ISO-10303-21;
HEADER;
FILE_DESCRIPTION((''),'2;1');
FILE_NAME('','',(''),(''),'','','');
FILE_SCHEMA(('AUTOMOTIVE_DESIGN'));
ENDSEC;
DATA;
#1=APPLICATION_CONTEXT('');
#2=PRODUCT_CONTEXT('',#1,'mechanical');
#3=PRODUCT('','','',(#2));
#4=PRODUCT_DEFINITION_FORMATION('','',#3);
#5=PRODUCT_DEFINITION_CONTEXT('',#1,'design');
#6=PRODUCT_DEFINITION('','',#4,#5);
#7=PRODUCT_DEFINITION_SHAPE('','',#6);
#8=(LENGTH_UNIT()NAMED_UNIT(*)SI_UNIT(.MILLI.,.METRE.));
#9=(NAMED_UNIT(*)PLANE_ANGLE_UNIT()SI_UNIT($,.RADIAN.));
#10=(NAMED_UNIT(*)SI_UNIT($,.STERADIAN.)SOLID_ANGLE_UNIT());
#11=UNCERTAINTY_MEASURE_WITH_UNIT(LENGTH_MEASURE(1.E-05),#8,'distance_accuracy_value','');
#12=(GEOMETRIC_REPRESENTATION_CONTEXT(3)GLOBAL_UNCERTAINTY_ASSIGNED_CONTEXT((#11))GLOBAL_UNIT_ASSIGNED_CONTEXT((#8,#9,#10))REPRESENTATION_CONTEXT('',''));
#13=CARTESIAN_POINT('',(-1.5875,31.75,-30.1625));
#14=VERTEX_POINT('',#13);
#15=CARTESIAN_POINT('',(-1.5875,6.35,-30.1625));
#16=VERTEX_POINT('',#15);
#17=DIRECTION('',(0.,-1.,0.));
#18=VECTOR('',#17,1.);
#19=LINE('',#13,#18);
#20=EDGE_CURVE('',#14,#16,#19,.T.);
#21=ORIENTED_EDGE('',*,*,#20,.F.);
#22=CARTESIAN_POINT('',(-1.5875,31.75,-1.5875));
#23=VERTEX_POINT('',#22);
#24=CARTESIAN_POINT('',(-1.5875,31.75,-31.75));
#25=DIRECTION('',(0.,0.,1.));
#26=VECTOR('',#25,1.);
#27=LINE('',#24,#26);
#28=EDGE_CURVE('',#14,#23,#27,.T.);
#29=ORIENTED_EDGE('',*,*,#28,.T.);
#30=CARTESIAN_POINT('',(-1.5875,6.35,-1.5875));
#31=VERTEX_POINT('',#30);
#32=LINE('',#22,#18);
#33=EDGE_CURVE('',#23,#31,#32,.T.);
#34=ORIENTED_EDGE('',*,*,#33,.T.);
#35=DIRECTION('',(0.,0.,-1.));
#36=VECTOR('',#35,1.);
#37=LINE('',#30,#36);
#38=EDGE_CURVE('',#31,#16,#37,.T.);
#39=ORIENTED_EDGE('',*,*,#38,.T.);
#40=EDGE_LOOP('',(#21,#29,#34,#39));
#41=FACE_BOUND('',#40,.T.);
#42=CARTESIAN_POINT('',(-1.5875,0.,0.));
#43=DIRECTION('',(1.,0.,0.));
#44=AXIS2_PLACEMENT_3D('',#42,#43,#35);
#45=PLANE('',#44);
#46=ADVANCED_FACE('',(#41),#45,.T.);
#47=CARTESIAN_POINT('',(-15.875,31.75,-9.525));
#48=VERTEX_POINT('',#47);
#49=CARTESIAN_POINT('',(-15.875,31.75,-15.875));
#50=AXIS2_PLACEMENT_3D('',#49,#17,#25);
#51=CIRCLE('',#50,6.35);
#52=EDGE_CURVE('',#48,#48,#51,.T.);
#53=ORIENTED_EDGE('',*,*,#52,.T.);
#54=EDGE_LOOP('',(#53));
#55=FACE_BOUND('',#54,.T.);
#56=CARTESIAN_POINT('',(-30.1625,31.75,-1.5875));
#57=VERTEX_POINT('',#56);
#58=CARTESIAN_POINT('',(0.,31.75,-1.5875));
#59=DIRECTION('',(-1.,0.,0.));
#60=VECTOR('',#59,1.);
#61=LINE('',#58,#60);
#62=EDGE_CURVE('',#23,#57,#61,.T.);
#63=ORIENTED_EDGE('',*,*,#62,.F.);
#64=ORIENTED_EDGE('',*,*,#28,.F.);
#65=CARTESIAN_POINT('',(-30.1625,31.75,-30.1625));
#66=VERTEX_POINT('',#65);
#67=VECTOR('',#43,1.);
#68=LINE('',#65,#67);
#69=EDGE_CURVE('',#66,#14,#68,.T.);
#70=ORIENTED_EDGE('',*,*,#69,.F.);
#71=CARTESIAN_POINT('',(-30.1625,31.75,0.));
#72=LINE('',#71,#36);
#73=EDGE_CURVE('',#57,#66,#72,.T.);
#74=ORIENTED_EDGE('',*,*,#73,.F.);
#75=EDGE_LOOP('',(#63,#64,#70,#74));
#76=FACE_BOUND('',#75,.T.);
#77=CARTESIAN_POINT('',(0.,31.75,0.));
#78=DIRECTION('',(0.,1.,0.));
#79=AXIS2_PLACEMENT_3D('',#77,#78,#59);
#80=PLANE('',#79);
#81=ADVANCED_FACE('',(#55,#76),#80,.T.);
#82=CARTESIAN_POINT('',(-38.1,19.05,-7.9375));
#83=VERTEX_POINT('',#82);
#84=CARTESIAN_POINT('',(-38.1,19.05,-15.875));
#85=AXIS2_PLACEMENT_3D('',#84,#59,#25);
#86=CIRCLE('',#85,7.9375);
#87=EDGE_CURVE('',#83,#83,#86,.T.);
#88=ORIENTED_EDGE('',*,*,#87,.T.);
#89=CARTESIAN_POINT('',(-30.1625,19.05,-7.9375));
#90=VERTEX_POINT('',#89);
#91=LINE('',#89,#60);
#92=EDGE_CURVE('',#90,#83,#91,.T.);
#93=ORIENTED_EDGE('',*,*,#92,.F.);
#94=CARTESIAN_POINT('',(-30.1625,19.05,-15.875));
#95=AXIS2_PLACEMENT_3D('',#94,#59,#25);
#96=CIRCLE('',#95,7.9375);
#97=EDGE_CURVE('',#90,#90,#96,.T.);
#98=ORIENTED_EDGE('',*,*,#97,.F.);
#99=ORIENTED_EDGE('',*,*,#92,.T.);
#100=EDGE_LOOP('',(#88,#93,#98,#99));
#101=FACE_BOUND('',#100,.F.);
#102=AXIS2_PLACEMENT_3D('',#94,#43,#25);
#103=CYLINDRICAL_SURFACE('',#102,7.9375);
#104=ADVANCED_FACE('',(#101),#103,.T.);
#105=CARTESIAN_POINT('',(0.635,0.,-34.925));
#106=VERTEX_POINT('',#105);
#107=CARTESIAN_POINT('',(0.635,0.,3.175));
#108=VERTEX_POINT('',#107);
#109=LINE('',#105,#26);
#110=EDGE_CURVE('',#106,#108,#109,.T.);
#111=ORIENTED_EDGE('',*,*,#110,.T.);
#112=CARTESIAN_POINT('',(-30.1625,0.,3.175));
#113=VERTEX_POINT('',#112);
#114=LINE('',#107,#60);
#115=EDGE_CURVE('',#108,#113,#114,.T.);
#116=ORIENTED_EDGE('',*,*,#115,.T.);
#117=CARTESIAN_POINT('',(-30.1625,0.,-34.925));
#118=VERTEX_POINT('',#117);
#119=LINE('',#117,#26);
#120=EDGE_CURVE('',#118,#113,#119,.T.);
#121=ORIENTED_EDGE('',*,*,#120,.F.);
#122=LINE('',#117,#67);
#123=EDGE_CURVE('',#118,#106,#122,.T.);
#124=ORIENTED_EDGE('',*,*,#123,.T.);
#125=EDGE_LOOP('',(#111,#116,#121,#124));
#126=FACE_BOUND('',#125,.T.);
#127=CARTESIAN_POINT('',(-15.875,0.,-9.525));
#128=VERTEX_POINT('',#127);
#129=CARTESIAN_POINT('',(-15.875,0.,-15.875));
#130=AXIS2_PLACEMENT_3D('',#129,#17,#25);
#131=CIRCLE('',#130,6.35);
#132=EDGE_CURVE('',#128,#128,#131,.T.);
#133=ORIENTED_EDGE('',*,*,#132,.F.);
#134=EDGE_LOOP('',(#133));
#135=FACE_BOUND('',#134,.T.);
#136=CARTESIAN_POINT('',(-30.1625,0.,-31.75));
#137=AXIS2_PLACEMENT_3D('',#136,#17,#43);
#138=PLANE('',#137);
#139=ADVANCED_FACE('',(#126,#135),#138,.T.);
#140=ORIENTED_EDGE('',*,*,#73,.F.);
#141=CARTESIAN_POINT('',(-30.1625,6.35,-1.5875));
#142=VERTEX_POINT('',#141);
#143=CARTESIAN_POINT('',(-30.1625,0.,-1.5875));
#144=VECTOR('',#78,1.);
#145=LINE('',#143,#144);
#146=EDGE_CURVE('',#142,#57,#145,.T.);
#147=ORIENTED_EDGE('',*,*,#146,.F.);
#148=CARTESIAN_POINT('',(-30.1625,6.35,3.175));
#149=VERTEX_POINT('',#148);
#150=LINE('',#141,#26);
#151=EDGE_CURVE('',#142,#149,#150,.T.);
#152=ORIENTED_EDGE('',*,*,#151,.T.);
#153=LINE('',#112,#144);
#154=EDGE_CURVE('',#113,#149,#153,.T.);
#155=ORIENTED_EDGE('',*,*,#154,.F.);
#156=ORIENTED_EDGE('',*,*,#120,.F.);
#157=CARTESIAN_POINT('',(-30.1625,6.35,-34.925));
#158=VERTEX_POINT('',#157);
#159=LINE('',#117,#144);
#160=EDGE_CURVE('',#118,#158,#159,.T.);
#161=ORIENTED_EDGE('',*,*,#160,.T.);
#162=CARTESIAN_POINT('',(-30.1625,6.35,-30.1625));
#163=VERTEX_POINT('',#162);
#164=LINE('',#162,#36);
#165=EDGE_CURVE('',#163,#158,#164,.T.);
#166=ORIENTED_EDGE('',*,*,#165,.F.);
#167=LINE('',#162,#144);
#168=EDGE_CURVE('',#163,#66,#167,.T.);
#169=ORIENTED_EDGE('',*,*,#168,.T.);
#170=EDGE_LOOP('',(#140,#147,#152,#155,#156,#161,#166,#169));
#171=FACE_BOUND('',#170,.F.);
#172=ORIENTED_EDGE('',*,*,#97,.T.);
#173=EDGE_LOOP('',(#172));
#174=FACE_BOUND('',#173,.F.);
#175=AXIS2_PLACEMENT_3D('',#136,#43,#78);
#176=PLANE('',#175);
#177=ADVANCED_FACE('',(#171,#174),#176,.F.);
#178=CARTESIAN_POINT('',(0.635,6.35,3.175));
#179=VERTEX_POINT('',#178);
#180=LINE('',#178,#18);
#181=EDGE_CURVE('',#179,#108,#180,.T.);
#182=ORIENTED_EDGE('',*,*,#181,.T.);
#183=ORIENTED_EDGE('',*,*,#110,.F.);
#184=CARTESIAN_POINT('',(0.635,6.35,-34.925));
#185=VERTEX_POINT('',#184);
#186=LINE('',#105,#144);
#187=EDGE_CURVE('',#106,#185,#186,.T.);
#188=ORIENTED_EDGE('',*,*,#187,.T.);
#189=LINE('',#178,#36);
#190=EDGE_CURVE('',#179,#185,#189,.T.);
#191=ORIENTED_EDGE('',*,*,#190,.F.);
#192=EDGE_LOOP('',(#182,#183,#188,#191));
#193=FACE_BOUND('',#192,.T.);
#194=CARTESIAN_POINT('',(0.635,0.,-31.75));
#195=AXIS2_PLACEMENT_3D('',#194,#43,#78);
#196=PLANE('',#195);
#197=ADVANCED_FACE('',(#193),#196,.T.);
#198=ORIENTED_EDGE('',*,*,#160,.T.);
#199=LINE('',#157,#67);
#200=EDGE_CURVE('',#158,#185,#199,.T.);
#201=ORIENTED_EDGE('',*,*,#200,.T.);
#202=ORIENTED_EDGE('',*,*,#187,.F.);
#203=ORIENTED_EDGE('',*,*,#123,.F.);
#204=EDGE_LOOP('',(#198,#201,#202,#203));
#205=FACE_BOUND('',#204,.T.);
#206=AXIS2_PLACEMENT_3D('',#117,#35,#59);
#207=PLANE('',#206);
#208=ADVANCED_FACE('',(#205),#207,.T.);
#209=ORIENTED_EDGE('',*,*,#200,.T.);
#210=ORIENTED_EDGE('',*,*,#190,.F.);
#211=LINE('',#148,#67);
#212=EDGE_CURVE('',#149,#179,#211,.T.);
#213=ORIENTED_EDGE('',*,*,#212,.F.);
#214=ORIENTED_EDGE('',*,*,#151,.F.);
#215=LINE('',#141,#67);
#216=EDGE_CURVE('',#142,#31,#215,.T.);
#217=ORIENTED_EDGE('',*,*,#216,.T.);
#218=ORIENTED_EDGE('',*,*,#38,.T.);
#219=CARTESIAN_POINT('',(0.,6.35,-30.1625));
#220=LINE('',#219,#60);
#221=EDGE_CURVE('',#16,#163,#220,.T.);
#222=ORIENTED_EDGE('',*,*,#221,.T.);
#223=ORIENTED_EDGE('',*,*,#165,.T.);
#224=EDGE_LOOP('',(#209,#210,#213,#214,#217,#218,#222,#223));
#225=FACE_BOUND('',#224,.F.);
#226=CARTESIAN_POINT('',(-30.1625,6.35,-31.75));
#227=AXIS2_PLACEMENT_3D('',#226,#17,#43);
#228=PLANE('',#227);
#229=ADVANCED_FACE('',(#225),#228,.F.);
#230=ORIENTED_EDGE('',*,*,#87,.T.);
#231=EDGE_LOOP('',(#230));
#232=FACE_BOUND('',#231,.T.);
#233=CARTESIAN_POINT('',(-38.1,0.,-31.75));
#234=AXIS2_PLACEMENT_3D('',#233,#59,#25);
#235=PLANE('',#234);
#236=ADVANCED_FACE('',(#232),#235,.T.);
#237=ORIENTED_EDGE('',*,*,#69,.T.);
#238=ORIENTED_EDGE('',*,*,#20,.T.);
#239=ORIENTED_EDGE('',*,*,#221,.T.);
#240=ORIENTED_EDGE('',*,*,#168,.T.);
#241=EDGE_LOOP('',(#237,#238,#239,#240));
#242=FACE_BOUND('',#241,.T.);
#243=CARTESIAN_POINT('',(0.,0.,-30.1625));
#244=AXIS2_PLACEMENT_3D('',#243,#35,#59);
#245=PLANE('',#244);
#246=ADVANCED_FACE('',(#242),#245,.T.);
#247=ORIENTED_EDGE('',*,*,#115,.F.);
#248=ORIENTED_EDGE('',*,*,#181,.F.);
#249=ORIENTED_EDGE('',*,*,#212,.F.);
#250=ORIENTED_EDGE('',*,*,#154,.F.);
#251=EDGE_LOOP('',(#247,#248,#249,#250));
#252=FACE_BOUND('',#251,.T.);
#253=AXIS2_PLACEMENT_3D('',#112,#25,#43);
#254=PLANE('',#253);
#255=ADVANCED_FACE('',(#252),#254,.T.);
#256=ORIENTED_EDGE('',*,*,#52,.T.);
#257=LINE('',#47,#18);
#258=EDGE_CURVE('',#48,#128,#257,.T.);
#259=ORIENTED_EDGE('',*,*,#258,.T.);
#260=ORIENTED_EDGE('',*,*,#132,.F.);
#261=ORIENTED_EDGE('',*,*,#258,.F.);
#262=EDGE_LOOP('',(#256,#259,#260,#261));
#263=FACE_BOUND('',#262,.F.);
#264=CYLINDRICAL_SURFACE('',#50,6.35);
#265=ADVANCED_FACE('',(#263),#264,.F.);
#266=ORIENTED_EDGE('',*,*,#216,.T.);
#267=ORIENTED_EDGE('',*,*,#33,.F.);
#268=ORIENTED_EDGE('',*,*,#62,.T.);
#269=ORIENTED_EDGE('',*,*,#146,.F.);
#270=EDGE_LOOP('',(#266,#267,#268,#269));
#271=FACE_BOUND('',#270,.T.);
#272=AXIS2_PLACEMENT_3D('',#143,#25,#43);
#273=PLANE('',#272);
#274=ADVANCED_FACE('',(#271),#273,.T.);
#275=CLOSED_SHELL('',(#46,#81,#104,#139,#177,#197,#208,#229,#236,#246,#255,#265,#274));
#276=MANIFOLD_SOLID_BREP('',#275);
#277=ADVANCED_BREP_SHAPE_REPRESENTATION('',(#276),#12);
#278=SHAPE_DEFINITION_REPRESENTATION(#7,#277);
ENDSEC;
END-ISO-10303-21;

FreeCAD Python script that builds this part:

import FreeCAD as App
import Part
import Sketcher

V = App.Vector
Q = App.Units.Quantity

doc = App.newDocument("Part")
body = doc.addObject("PartDesign::Body", "Body")

sketch1 = body.newObject("Sketcher::SketchObject", "Sketch")
sketch1.AttachmentSupport = (doc.getObject("XZ_Plane"), [""])
sketch1.MapMode = "FlatFace"
sketch1.addGeometry([
    Part.LineSegment(V(-30.1625, 0, 0), V(0, 0, 0)),
    Part.LineSegment(V(0, 0, 0), V(0, -31.75, 0)),
    Part.LineSegment(V(0, -31.75, 0), V(-30.1625, -31.75, 0)),
    Part.LineSegment(V(-30.1625, -31.75, 0), V(-30.1625, 0, 0)),
], False)
sketch1.addConstraint([
    Sketcher.Constraint("Coincident", 0, 2, 1, 1),
    Sketcher.Constraint("Coincident", 1, 2, 2, 1),
    Sketcher.Constraint("Coincident", 2, 2, 3, 1),
    Sketcher.Constraint("Coincident", 3, 2, 0, 1),
    Sketcher.Constraint("Horizontal", 0),
    Sketcher.Constraint("Vertical", 1),
    Sketcher.Constraint("Horizontal", 2),
    Sketcher.Constraint("Vertical", 3),
    Sketcher.Constraint("Coincident", 0, 2, -1, 1),
    Sketcher.Constraint("DistanceY", 1, 2, 1, 1, Q("1.25 in")),
    Sketcher.Constraint("DistanceX", 0, 1, 0, 2, Q("1.1875 in")),
])
pad1 = body.newObject("PartDesign::Pad", "Pad")
pad1.Profile = sketch1
pad1.Length = Q("1.25 in")
pad1.Reversed = True

sketch2 = body.newObject("Sketcher::SketchObject", "Sketch001")
sketch2.AttachmentSupport = (doc.getObject("XY_Plane"), [""])
sketch2.MapMode = "FlatFace"
sketch2.addGeometry([
    Part.LineSegment(V(-30.1625, 31.75, 0), V(-30.1625, 6.35, 0)),
    Part.LineSegment(V(-30.1625, 6.35, 0), V(0, 6.35, 0)),
    Part.LineSegment(V(0, 6.35, 0), V(0, 31.75, 0)),
    Part.LineSegment(V(0, 31.75, 0), V(-30.1625, 31.75, 0)),
], False)
sketch2.addConstraint([
    Sketcher.Constraint("Coincident", 0, 2, 1, 1),
    Sketcher.Constraint("Coincident", 1, 2, 2, 1),
    Sketcher.Constraint("Coincident", 2, 2, 3, 1),
    Sketcher.Constraint("Coincident", 3, 2, 0, 1),
    Sketcher.Constraint("Vertical", 0),
    Sketcher.Constraint("Horizontal", 1),
    Sketcher.Constraint("Vertical", 2),
    Sketcher.Constraint("Horizontal", 3),
    Sketcher.Constraint("PointOnObject", 1, 2, -2),
    Sketcher.Constraint("DistanceY", 0, 2, 0, 1, Q("1 in")),
    Sketcher.Constraint("DistanceY", -1, 1, 0, 2, Q("0.25 in")),
    Sketcher.Constraint("DistanceX", 1, 1, 1, 2, Q("1.1875 in")),
])
pocket1 = body.newObject("PartDesign::Pocket", "Pocket")
pocket1.Profile = sketch2
pocket1.Length = Q("0.0625 in")

sketch3 = body.newObject("Sketcher::SketchObject", "Sketch002")
sketch3.AttachmentSupport = (doc.getObject("YZ_Plane"), [""])
sketch3.MapMode = "FlatFace"
sketch3.addGeometry([
    Part.LineSegment(V(31.75, -31.75, 0), V(31.75, -1.5875, 0)),
    Part.LineSegment(V(31.75, -1.5875, 0), V(6.35, -1.5875, 0)),
    Part.LineSegment(V(6.35, -1.5875, 0), V(6.35, -31.75, 0)),
    Part.LineSegment(V(6.35, -31.75, 0), V(31.75, -31.75, 0)),
], False)
sketch3.addConstraint([
    Sketcher.Constraint("Coincident", 0, 2, 1, 1),
    Sketcher.Constraint("Coincident", 1, 2, 2, 1),
    Sketcher.Constraint("Coincident", 2, 2, 3, 1),
    Sketcher.Constraint("Coincident", 3, 2, 0, 1),
    Sketcher.Constraint("Vertical", 0),
    Sketcher.Constraint("Horizontal", 1),
    Sketcher.Constraint("Vertical", 2),
    Sketcher.Constraint("Horizontal", 3),
    Sketcher.Constraint("DistanceX", 1, 2, 1, 1, Q("1 in")),
    Sketcher.Constraint("DistanceY", 0, 1, 0, 2, Q("1.1875 in")),
    Sketcher.Constraint("DistanceX", -1, 1, 0, 2, Q("1.25 in")),
    Sketcher.Constraint("DistanceY", 2, 2, -1, 1, Q("1.25 in")),
])
pocket2 = body.newObject("PartDesign::Pocket", "Pocket001")
pocket2.Profile = sketch3
pocket2.Length = Q("0.0625 in")

sketch4 = body.newObject("Sketcher::SketchObject", "Sketch003")
sketch4.AttachmentSupport = (doc.getObject("XY_Plane"), [""])
sketch4.MapMode = "FlatFace"
sketch4.AttachmentOffset = App.Placement(V(0, 0, -1.25 * 25.4), App.Rotation())
sketch4.addGeometry([
    Part.LineSegment(V(-1.5875, 31.75, 0), V(-1.5875, 6.35, 0)),
    Part.LineSegment(V(-1.5875, 6.35, 0), V(-30.1625, 6.35, 0)),
    Part.LineSegment(V(-30.1625, 6.35, 0), V(-30.1625, 31.75, 0)),
    Part.LineSegment(V(-30.1625, 31.75, 0), V(-1.5875, 31.75, 0)),
], False)
sketch4.addConstraint([
    Sketcher.Constraint("Coincident", 0, 2, 1, 1),
    Sketcher.Constraint("Coincident", 1, 2, 2, 1),
    Sketcher.Constraint("Coincident", 2, 2, 3, 1),
    Sketcher.Constraint("Coincident", 3, 2, 0, 1),
    Sketcher.Constraint("Vertical", 0),
    Sketcher.Constraint("Horizontal", 1),
    Sketcher.Constraint("Vertical", 2),
    Sketcher.Constraint("Horizontal", 3),
    Sketcher.Constraint("DistanceY", 0, 2, 0, 1, Q("1 in")),
    Sketcher.Constraint("DistanceX", 1, 2, 1, 1, Q("1.125 in")),
    Sketcher.Constraint("DistanceY", -1, 1, 0, 2, Q("0.25 in")),
    Sketcher.Constraint("DistanceX", 0, 2, -1, 1, Q("0.0625 in")),
])
pocket3 = body.newObject("PartDesign::Pocket", "Pocket002")
pocket3.Profile = sketch4
pocket3.Length = Q("0.0625 in")
pocket3.Reversed = True

sketch5 = body.newObject("Sketcher::SketchObject", "Sketch004")
sketch5.AttachmentSupport = (doc.getObject("XZ_Plane"), [""])
sketch5.MapMode = "FlatFace"
sketch5.AttachmentOffset = App.Placement(V(0, 0, -1.25 * 25.4), App.Rotation())
sketch5.addGeometry(Part.Circle(V(-15.875, -15.875, 0), V(0, 0, 1), 6.35), False)
sketch5.addConstraint([
    Sketcher.Constraint("Diameter", 0, Q("0.5 in")),
    Sketcher.Constraint("DistanceX", 0, 3, -1, 1, Q("0.625 in")),
    Sketcher.Constraint("DistanceY", 0, 3, -1, 1, Q("0.625 in")),
])
doc.recompute()
hole = body.newObject("PartDesign::Hole", "Hole")
hole.Profile = sketch5
hole.ThreadType = "None"
hole.Diameter = Q("0.5 in")
hole.DepthType = "ThroughAll"
hole.Reversed = True

sketch6 = body.newObject("Sketcher::SketchObject", "Sketch005")
sketch6.AttachmentSupport = (doc.getObject("YZ_Plane"), [""])
sketch6.MapMode = "FlatFace"
sketch6.AttachmentOffset = App.Placement(V(0, 0, -1.1875 * 25.4), App.Rotation())
sketch6.addGeometry(Part.Circle(V(19.05, -15.875, 0), V(0, 0, 1), 7.9375), False)
sketch6.addConstraint([
    Sketcher.Constraint("Diameter", 0, Q("0.625 in")),
    Sketcher.Constraint("DistanceY", 0, 3, -1, 1, Q("0.625 in")),
    Sketcher.Constraint("DistanceX", -1, 1, 0, 3, Q("0.75 in")),
])
pad2 = body.newObject("PartDesign::Pad", "Pad001")
pad2.Profile = sketch6
pad2.Length = Q("0.3125 in")
pad2.Reversed = True

sketch7 = body.newObject("Sketcher::SketchObject", "Sketch006")
sketch7.AttachmentSupport = (doc.getObject("YZ_Plane"), [""])
sketch7.MapMode = "FlatFace"
sketch7.addGeometry([
    Part.LineSegment(V(0, -31.75, 0), V(6.35, -31.75, 0)),
    Part.LineSegment(V(6.35, -31.75, 0), V(6.35, 0, 0)),
    Part.LineSegment(V(6.35, 0, 0), V(0, 0, 0)),
    Part.LineSegment(V(0, 0, 0), V(0, -31.75, 0)),
], False)
sketch7.addConstraint([
    Sketcher.Constraint("Coincident", 0, 2, 1, 1),
    Sketcher.Constraint("Coincident", 1, 2, 2, 1),
    Sketcher.Constraint("Coincident", 2, 2, 3, 1),
    Sketcher.Constraint("Coincident", 3, 2, 0, 1),
    Sketcher.Constraint("Horizontal", 0),
    Sketcher.Constraint("Vertical", 1),
    Sketcher.Constraint("Horizontal", 2),
    Sketcher.Constraint("Vertical", 3),
    Sketcher.Constraint("Coincident", 2, 2, -1, 1),
    Sketcher.Constraint("DistanceX", 0, 1, 0, 2, Q("0.25 in")),
    Sketcher.Constraint("DistanceY", 1, 1, 1, 2, Q("1.25 in")),
])
pad3 = body.newObject("PartDesign::Pad", "Pad002")
pad3.Profile = sketch7
pad3.Length = Q("0.025 in")

sketch8 = body.newObject("Sketcher::SketchObject", "Sketch007")
sketch8.AttachmentSupport = (doc.getObject("XY_Plane"), [""])
sketch8.MapMode = "FlatFace"
sketch8.addGeometry([
    Part.LineSegment(V(0.635, 6.35, 0), V(-30.1625, 6.35, 0)),
    Part.LineSegment(V(-30.1625, 6.35, 0), V(-30.1625, 0, 0)),
    Part.LineSegment(V(-30.1625, 0, 0), V(0.635, 0, 0)),
    Part.LineSegment(V(0.635, 0, 0), V(0.635, 6.35, 0)),
], False)
sketch8.addConstraint([
    Sketcher.Constraint("Coincident", 0, 2, 1, 1),
    Sketcher.Constraint("Coincident", 1, 2, 2, 1),
    Sketcher.Constraint("Coincident", 2, 2, 3, 1),
    Sketcher.Constraint("Coincident", 3, 2, 0, 1),
    Sketcher.Constraint("Horizontal", 0),
    Sketcher.Constraint("Vertical", 1),
    Sketcher.Constraint("Horizontal", 2),
    Sketcher.Constraint("Vertical", 3),
    Sketcher.Constraint("PointOnObject", 1, 2, -1),
    Sketcher.Constraint("DistanceY", 1, 2, 1, 1, Q("0.25 in")),
    Sketcher.Constraint("DistanceX", 0, 2, 0, 1, Q("1.2125 in")),
    Sketcher.Constraint("DistanceX", 0, 2, -1, 1, Q("1.1875 in")),
])
pad4 = body.newObject("PartDesign::Pad", "Pad003")
pad4.Profile = sketch8
pad4.Length = Q("0.125 in")

sketch9 = body.newObject("Sketcher::SketchObject", "Sketch008")
sketch9.AttachmentSupport = (doc.getObject("XY_Plane"), [""])
sketch9.MapMode = "FlatFace"
sketch9.AttachmentOffset = App.Placement(V(0, 0, -1.25 * 25.4), App.Rotation())
sketch9.addGeometry([
    Part.LineSegment(V(-30.1625, 0, 0), V(-30.1625, 6.35, 0)),
    Part.LineSegment(V(-30.1625, 6.35, 0), V(0.635, 6.35, 0)),
    Part.LineSegment(V(0.635, 6.35, 0), V(0.635, 0, 0)),
    Part.LineSegment(V(0.635, 0, 0), V(-30.1625, 0, 0)),
], False)
sketch9.addConstraint([
    Sketcher.Constraint("Coincident", 0, 2, 1, 1),
    Sketcher.Constraint("Coincident", 1, 2, 2, 1),
    Sketcher.Constraint("Coincident", 2, 2, 3, 1),
    Sketcher.Constraint("Coincident", 3, 2, 0, 1),
    Sketcher.Constraint("Vertical", 0),
    Sketcher.Constraint("Horizontal", 1),
    Sketcher.Constraint("Vertical", 2),
    Sketcher.Constraint("Horizontal", 3),
    Sketcher.Constraint("PointOnObject", 2, 2, -1),
    Sketcher.Constraint("DistanceY", 0, 1, 0, 2, Q("0.25 in")),
    Sketcher.Constraint("DistanceX", 1, 1, 1, 2, Q("1.2125 in")),
    Sketcher.Constraint("DistanceX", 0, 2, -1, 1, Q("1.1875 in")),
])
pad5 = body.newObject("PartDesign::Pad", "Pad004")
pad5.Profile = sketch9
pad5.Length = Q("0.125 in")
pad5.Reversed = True

doc.recompute()
